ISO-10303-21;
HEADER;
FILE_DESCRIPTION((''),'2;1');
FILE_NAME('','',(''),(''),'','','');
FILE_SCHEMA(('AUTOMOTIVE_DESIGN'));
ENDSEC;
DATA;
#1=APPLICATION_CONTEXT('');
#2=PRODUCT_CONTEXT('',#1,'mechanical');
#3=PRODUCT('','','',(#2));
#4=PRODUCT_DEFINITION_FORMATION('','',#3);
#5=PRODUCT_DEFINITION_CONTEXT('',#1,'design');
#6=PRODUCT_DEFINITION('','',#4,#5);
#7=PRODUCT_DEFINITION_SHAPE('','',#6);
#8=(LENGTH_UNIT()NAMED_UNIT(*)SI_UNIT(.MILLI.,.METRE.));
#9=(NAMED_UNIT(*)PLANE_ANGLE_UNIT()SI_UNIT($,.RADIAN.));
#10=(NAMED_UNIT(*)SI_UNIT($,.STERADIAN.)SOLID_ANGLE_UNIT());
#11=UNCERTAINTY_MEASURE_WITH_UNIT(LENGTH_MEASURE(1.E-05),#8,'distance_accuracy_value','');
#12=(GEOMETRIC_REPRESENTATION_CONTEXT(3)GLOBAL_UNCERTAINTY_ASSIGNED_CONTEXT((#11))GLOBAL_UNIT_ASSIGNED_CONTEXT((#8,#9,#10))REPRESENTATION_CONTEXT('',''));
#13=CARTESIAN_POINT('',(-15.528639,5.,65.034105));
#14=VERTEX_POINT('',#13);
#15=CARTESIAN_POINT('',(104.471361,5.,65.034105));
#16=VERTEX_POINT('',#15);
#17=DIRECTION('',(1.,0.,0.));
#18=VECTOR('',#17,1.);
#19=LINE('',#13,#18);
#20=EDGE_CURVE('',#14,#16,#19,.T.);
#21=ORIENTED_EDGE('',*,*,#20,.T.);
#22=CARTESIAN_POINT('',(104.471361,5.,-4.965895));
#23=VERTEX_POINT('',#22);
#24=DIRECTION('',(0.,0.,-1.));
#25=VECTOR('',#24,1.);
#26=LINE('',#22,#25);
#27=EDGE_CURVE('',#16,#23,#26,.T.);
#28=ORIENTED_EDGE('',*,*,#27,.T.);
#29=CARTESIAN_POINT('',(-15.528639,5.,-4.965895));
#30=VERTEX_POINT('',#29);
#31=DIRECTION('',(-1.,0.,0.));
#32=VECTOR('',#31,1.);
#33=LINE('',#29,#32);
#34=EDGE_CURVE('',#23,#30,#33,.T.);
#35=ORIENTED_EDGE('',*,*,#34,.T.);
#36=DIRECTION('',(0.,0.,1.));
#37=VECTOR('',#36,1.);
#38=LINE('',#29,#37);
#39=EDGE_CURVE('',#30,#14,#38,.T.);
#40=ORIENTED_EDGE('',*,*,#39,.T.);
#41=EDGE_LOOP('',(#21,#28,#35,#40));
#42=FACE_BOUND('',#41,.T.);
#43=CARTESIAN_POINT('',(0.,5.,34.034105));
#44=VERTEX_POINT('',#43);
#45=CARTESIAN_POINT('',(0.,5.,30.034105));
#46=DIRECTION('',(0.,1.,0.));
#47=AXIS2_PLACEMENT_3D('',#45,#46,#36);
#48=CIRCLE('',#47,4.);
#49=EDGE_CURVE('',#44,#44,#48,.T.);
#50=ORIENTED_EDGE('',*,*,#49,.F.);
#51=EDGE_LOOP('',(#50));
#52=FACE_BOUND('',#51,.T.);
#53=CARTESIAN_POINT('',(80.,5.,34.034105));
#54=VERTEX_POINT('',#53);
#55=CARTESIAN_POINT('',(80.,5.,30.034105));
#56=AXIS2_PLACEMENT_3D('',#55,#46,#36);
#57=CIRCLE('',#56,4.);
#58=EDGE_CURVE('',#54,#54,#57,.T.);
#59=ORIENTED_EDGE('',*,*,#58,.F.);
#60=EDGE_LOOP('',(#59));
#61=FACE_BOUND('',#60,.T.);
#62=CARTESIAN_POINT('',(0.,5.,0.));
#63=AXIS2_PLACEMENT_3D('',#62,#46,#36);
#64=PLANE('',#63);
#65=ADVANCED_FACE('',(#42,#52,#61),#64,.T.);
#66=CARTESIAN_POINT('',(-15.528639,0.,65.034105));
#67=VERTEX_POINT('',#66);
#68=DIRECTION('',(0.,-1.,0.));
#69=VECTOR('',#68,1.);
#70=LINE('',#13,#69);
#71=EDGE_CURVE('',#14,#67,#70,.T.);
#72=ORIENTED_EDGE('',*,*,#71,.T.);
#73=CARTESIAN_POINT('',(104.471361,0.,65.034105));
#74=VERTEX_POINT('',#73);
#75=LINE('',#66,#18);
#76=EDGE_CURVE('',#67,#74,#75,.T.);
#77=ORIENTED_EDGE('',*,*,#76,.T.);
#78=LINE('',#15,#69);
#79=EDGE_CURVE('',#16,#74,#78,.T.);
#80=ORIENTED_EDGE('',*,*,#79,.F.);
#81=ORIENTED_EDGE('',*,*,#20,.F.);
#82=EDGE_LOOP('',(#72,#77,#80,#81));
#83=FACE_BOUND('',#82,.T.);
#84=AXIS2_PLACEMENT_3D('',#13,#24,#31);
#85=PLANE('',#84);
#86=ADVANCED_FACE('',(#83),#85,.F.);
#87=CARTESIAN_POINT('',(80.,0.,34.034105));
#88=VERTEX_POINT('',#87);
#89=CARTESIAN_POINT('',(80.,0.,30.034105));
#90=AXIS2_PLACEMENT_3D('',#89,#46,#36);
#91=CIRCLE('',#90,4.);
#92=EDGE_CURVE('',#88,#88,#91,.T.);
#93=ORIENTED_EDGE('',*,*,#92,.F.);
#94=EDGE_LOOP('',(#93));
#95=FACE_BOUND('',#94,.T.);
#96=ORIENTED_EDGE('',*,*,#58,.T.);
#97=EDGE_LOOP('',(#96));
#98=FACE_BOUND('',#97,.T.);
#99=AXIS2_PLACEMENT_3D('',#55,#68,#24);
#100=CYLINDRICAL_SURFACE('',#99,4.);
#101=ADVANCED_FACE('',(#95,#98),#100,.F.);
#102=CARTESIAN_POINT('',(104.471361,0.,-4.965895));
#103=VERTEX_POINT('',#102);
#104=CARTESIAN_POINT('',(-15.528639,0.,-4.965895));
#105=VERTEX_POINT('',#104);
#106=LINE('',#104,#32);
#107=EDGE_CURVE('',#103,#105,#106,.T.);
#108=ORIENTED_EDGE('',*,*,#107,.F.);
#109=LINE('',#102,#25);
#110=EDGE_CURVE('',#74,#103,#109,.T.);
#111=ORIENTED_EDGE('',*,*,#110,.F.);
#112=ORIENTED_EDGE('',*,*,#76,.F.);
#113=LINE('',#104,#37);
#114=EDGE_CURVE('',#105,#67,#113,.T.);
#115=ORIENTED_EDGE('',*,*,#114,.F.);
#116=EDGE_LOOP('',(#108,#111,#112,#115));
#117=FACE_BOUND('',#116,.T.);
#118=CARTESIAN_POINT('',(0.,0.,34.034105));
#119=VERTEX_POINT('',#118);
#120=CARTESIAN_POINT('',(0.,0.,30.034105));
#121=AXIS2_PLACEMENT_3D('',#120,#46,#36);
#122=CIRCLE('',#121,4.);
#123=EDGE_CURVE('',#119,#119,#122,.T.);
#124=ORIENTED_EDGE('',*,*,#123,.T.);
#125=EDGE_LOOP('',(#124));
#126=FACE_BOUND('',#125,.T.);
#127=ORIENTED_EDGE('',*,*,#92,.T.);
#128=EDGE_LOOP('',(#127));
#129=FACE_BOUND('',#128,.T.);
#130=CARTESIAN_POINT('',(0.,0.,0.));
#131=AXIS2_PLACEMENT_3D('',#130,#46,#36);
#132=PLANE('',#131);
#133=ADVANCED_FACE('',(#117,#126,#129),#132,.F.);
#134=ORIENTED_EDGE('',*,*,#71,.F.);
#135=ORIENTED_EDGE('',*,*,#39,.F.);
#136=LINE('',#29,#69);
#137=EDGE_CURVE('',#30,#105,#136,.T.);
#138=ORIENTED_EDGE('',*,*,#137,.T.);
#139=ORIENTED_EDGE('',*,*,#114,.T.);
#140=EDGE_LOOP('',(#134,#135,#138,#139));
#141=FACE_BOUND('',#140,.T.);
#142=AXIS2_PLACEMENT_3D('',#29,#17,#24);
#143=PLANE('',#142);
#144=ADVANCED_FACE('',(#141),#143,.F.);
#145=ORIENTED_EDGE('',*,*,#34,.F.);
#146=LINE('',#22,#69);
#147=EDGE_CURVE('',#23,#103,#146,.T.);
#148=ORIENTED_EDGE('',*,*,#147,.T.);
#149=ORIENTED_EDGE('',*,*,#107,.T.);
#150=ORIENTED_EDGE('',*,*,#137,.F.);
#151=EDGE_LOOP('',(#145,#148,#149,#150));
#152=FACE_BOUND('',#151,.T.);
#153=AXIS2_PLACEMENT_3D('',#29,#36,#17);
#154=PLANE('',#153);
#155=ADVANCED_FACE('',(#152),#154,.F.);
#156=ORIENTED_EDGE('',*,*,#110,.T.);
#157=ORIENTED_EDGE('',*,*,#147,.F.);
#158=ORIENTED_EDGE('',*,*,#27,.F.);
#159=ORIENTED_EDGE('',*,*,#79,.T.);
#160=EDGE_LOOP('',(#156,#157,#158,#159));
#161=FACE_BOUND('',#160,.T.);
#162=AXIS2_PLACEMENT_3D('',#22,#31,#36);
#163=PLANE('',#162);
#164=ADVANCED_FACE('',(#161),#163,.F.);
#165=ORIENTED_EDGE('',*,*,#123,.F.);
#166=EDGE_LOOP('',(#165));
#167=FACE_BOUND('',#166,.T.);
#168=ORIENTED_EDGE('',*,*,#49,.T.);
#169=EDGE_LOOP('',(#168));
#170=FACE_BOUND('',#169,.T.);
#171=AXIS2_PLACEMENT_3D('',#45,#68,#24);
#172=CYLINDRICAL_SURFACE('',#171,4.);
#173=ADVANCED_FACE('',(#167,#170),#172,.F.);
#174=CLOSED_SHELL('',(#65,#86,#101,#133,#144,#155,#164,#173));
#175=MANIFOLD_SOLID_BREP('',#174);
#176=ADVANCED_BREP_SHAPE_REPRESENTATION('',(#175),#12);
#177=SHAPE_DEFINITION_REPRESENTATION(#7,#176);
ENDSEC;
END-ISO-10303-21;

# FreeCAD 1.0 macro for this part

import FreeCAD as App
import Part
import Sketcher

V = App.Vector


def add_polygon(sketch, points):
    """Adds a closed chain of lines whose ends are joined by coincident constraints."""
    first, n = sketch.GeometryCount, len(points)
    for a, b in zip(points, points[1:] + points[:1]):
        sketch.addGeometry(Part.LineSegment(App.Vector(*a, 0), App.Vector(*b, 0)), False)
    for i in range(n):
        sketch.addConstraint(Sketcher.Constraint("Coincident", first + i, 2, first + (i + 1) % n, 1))

doc = App.newDocument("Part")
body = doc.addObject("PartDesign::Body", "Body")

sketch1 = body.newObject("Sketcher::SketchObject", "Sketch")
sketch1.AttachmentSupport = (doc.getObject("XZ_Plane"), [""])
sketch1.MapMode = "FlatFace"
add_polygon(sketch1, [(-15.528639, -4.965895), (-15.528639, 65.034105), (104.471361, 65.034105), (104.471361, -4.965895)])
sketch1.addGeometry(Part.Circle(V(0, 30.034105, 0), V(0, 0, 1), 4), False)
sketch1.addGeometry(Part.Circle(V(80, 30.034105, 0), V(0, 0, 1), 4), False)
sketch1.addConstraint(Sketcher.Constraint("Vertical", 0))
sketch1.addConstraint(Sketcher.Constraint("Horizontal", 1))
sketch1.addConstraint(Sketcher.Constraint("Vertical", 2))
sketch1.addConstraint(Sketcher.Constraint("Horizontal", 3))
sketch1.addConstraint(Sketcher.Constraint("Equal", 4, 5))
sketch1.addConstraint(Sketcher.Constraint("PointOnObject", 4, 3, -2))
sketch1.addConstraint(Sketcher.Constraint("Horizontal", 4, 3, 5, 3))
sketch1.addConstraint(Sketcher.Constraint("Diameter", 4, 8.0))
sketch1.addConstraint(Sketcher.Constraint("DistanceX", 1, 1, 1, 2, 120.0))
sketch1.addConstraint(Sketcher.Constraint("DistanceY", 0, 1, 0, 2, 70.0))
sketch1.addConstraint(Sketcher.Constraint("DistanceX", -1, 1, 5, 3, 80.0))
sketch1.addConstraint(Sketcher.Constraint("DistanceY", 4, 3, 0, 2, 35.0))
sketch1.addConstraint(Sketcher.Constraint("DistanceX", 0, 2, -1, 1, 15.528639))
sketch1.addConstraint(Sketcher.Constraint("DistanceY", -1, 1, 4, 3, 30.034105))
pad1 = body.newObject("PartDesign::Pad", "Pad")
pad1.Profile = sketch1
pad1.Length = 5
pad1.Reversed = True

doc.recompute()
